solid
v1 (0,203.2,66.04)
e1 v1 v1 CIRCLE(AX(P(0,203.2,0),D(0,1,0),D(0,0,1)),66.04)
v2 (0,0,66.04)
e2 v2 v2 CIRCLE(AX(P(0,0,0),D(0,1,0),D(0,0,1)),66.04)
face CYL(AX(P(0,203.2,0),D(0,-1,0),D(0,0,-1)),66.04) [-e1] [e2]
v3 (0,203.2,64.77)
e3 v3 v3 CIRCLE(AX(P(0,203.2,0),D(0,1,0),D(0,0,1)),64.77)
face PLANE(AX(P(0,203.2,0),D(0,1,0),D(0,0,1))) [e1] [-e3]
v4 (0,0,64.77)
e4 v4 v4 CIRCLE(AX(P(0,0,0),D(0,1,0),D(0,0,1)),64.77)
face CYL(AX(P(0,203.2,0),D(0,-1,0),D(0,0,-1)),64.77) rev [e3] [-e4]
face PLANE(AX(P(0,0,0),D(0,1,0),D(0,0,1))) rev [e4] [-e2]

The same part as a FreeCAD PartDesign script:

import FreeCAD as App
import Part
import Sketcher
Q = App.Units.Quantity

doc = App.newDocument("Part")
body = doc.addObject("PartDesign::Body", "Body")

# Sketch on XZ plane
sketch1 = body.newObject("Sketcher::SketchObject", "Sketch")
sketch1.AttachmentSupport = (doc.getObject("XZ_Plane"), [""])
sketch1.MapMode = "FlatFace"
sketch1.addGeometry(Part.Circle(App.Vector(0, 0, 0), App.Vector(0, 0, 1), 66), False)
sketch1.addGeometry(Part.Circle(App.Vector(0, 0, 0), App.Vector(0, 0, 1), 65), False)
sketch1.addConstraint(Sketcher.Constraint("Coincident", 0, 3, -1, 1))
sketch1.addConstraint(Sketcher.Constraint("Coincident", 1, 3, -1, 1))
sketch1.addConstraint(Sketcher.Constraint("Diameter", 0, Q("5.2 in")))
sketch1.addConstraint(Sketcher.Constraint("Diameter", 1, Q("5.1 in")))
pad1 = body.newObject("PartDesign::Pad", "Pad")
pad1.Profile = sketch1
pad1.Length = Q("8 in")
pad1.Reversed = True

doc.recompute()
